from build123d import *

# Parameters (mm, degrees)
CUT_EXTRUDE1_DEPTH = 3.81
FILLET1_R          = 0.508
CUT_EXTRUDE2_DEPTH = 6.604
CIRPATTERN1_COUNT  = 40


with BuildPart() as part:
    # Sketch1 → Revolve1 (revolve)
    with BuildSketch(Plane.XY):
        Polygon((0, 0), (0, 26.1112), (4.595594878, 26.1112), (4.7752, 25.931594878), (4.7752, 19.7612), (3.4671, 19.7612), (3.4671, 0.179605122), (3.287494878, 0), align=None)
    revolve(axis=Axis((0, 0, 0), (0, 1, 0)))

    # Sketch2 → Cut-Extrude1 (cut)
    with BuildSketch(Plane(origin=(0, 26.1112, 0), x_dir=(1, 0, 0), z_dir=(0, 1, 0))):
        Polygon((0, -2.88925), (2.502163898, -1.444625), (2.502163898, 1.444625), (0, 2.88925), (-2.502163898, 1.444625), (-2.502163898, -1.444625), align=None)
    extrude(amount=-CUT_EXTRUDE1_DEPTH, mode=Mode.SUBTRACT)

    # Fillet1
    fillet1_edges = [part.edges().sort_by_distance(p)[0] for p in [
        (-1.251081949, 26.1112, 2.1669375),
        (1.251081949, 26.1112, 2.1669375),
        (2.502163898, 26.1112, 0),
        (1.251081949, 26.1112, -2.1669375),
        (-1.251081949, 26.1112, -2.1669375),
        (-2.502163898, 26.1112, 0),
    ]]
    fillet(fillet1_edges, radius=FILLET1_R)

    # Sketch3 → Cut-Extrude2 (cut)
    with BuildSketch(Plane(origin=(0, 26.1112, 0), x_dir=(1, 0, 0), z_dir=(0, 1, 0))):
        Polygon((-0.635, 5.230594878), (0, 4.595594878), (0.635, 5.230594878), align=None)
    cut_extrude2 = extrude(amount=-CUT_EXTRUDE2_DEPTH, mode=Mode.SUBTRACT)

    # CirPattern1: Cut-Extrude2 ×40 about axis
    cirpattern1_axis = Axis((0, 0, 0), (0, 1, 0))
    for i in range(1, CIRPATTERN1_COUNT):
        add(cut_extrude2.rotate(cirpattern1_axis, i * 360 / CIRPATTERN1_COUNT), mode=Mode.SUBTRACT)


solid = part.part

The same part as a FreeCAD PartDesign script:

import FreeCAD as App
import Part
import Sketcher

V = App.Vector
Q = App.Units.Quantity


def edges_at(feature, points):
    """Names of the edges that pass closest to the given points."""
    edges = feature.Shape.Edges
    near = lambda p: min(range(len(edges)), key=lambda i: edges[i].distToShape(Part.Vertex(*p))[0])
    return sorted({f"Edge{near(p) + 1}" for p in points})

doc = App.newDocument("Part")
body = doc.addObject("PartDesign::Body", "Body")

# Sketch on XY plane
sketch1 = body.newObject("Sketcher::SketchObject", "Sketch")
sketch1.AttachmentSupport = (doc.getObject("XY_Plane"), [""])
sketch1.MapMode = "FlatFace"
sketch1.addGeometry([
    Part.LineSegment(V(0, 26.11, 0), V(0, 0, 0)),  # 0
    Part.LineSegment(V(0, 0, 0), V(3.29, 0, 0)),  # 1
    Part.LineSegment(V(3.29, 0, 0), V(3.47, 0.18, 0)),  # 2
    Part.LineSegment(V(3.47, 0.18, 0), V(3.47, 19.76, 0)),  # 3
    Part.LineSegment(V(3.47, 19.76, 0), V(4.78, 19.76, 0)),  # 4
    Part.LineSegment(V(4.78, 19.76, 0), V(4.78, 25.93, 0)),  # 5
    Part.LineSegment(V(4.78, 25.93, 0), V(4.6, 26.11, 0)),  # 6
    Part.LineSegment(V(4.6, 26.11, 0), V(0, 26.11, 0)),  # 7
], False)
sketch1.addConstraint([
    Sketcher.Constraint("Coincident", 0, 2, 1, 1),
    Sketcher.Constraint("Coincident", 1, 2, 2, 1),
    Sketcher.Constraint("Coincident", 2, 2, 3, 1),
    Sketcher.Constraint("Coincident", 3, 2, 4, 1),
    Sketcher.Constraint("Coincident", 4, 2, 5, 1),
    Sketcher.Constraint("Coincident", 5, 2, 6, 1),
    Sketcher.Constraint("Coincident", 6, 2, 7, 1),
    Sketcher.Constraint("Coincident", 7, 2, 0, 1),
    Sketcher.Constraint("Vertical", 0),
    Sketcher.Constraint("Horizontal", 1),
    Sketcher.Constraint("Vertical", 3),
    Sketcher.Constraint("Horizontal", 4),
    Sketcher.Constraint("Vertical", 5),
    Sketcher.Constraint("Horizontal", 7),
    Sketcher.Constraint("Coincident", 0, 2, -1, 1),
    Sketcher.Constraint("Perpendicular", 2, 6),
    Sketcher.Constraint("Equal", 2, 6),
    Sketcher.Constraint("Angle", 2, Q("45 deg")),
    Sketcher.Constraint("Distance", 2, Q("0.01 in")),
    Sketcher.Constraint("DistanceY", 0, 2, 0, 1, Q("1.028 in")),
    Sketcher.Constraint("DistanceY", 4, 2, 6, 2, Q("0.25 in")),
    Sketcher.Constraint("DistanceX", 4, 1, 4, 2, Q("0.0515 in")),
    Sketcher.Constraint("DistanceX", -1, 1, 4, 2, Q("0.188 in")),
])
revolution = body.newObject("PartDesign::Revolution", "Revolution")
revolution.Profile = sketch1
revolution.ReferenceAxis = (sketch1, ["V_Axis"])
revolution.Angle = 360

# Sketch on XZ plane
sketch2 = body.newObject("Sketcher::SketchObject", "Sketch001")
sketch2.AttachmentSupport = (doc.getObject("XZ_Plane"), [""])
sketch2.MapMode = "FlatFace"
sketch2.AttachmentOffset = App.Placement(V(0, 0, -1.028 * 25.4), App.Rotation())
sketch2.addGeometry([
    Part.LineSegment(V(0, 2.9, 0), V(2.5, 1.4, 0)),  # 0
    Part.LineSegment(V(2.5, 1.4, 0), V(2.5, -1.4, 0)),  # 1
    Part.LineSegment(V(2.5, -1.4, 0), V(0, -2.9, 0)),  # 2
    Part.LineSegment(V(0, -2.9, 0), V(-2.5, -1.4, 0)),  # 3
    Part.LineSegment(V(-2.5, -1.4, 0), V(-2.5, 1.4, 0)),  # 4
    Part.LineSegment(V(-2.5, 1.4, 0), V(0, 2.9, 0)),  # 5
], False)
sketch2.addConstraint([
    Sketcher.Constraint("Coincident", 0, 2, 1, 1),
    Sketcher.Constraint("Coincident", 1, 2, 2, 1),
    Sketcher.Constraint("Coincident", 2, 2, 3, 1),
    Sketcher.Constraint("Coincident", 3, 2, 4, 1),
    Sketcher.Constraint("Coincident", 4, 2, 5, 1),
    Sketcher.Constraint("Coincident", 5, 2, 0, 1),
    Sketcher.Constraint("Vertical", 1),
    Sketcher.Constraint("Vertical", 4),
    Sketcher.Constraint("Symmetric", 0, 2, 3, 2, -1, 1),
    Sketcher.Constraint("Symmetric", 2, 2, 5, 2, -1, 1),
    Sketcher.Constraint("PointOnObject", 2, 2, -2),
    Sketcher.Constraint("Parallel", 2, 5),
    Sketcher.Constraint("Horizontal", 1, 2, 3, 2),
    Sketcher.Constraint("Angle", 0, Q("-30 deg")),
    Sketcher.Constraint("DistanceY", 2, 2, 5, 2, Q("0.2275 in")),
    Sketcher.Constraint("DistanceY", 1, 2, 1, 1, 2.88925),
])
pocket1 = body.newObject("PartDesign::Pocket", "Pocket")
pocket1.Profile = sketch2
pocket1.Length = Q("0.15 in")
pocket1.Reversed = True
doc.recompute()

fillet = body.newObject("PartDesign::Fillet", "Fillet")
fillet.Base = (pocket1, edges_at(pocket1, [
    (-1.251, 26.111, 2.167),
    (1.251, 26.111, 2.167),
    (2.502, 26.111, 0),
    (1.251, 26.111, -2.167),
    (-1.251, 26.111, -2.167),
    (-2.502, 26.111, 0),
]))
fillet.Radius = Q("0.02 in")

# Sketch on XZ plane
sketch3 = body.newObject("Sketcher::SketchObject", "Sketch002")
sketch3.AttachmentSupport = (doc.getObject("XZ_Plane"), [""])
sketch3.MapMode = "FlatFace"
sketch3.AttachmentOffset = App.Placement(V(0, 0, -1.028 * 25.4), App.Rotation())
sketch3.addGeometry([
    Part.LineSegment(V(-0.6, -5.2, 0), V(0, -4.6, 0)),
    Part.LineSegment(V(0, -4.6, 0), V(0.6, -5.2, 0)),
    Part.LineSegment(V(0.6, -5.2, 0), V(-0.6, -5.2, 0)),
], False)
sketch3.addConstraint([
    Sketcher.Constraint("Coincident", 0, 2, 1, 1),
    Sketcher.Constraint("Coincident", 1, 2, 2, 1),
    Sketcher.Constraint("Coincident", 2, 2, 0, 1),
    Sketcher.Constraint("Horizontal", 2),
    Sketcher.Constraint("PointOnObject", 0, 2, -2),
    Sketcher.Constraint("Perpendicular", 0, 1),
    Sketcher.Constraint("Equal", 0, 1),
    Sketcher.Constraint("DistanceX", 2, 2, 2, 1, Q("0.05 in")),
    Sketcher.Constraint("DistanceY", 0, 2, -1, 1, 4.595595),
])
pocket2 = body.newObject("PartDesign::Pocket", "Pocket001")
pocket2.Profile = sketch3
pocket2.Length = Q("0.26 in")
pocket2.Reversed = True
doc.recompute()

polarpattern = body.newObject("PartDesign::PolarPattern", "PolarPattern")
polarpattern.Originals = [pocket2]
polarpattern.Axis = (doc.getObject("Y_Axis"), [""])
polarpattern.Angle = 360
polarpattern.Occurrences = 40
body.Tip = polarpattern

doc.recompute()
